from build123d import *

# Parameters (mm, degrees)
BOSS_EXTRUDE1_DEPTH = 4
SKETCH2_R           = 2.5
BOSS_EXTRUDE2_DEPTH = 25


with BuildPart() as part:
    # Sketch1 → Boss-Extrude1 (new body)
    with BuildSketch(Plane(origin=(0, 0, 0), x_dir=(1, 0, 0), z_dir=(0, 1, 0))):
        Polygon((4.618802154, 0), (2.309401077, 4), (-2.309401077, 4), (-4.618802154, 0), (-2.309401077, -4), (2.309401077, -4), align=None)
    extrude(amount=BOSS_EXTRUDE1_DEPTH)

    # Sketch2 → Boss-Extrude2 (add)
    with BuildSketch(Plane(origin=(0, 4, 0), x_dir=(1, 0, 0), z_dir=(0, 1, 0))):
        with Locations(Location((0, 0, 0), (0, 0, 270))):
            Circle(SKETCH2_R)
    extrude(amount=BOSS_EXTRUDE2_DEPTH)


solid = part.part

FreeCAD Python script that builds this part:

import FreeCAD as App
import Part
import Sketcher

V = App.Vector
Q = App.Units.Quantity


def add_polygon(sketch, points):
    """Adds a closed chain of lines whose ends are joined by coincident constraints."""
    first, n = sketch.GeometryCount, len(points)
    for a, b in zip(points, points[1:] + points[:1]):
        sketch.addGeometry(Part.LineSegment(App.Vector(*a, 0), App.Vector(*b, 0)), False)
    for i in range(n):
        sketch.addConstraint(Sketcher.Constraint("Coincident", first + i, 2, first + (i + 1) % n, 1))

doc = App.newDocument("Part")
body = doc.addObject("PartDesign::Body", "Body")

sketch1 = body.newObject("Sketcher::SketchObject", "Sketch")
sketch1.AttachmentSupport = (doc.getObject("XZ_Plane"), [""])
sketch1.MapMode = "FlatFace"
add_polygon(sketch1, [(4.6, 0), (2.3, -4), (-2.3, -4), (-4.6, 0), (-2.3, 4), (2.3, 4)])
sketch1.addConstraint(Sketcher.Constraint("Horizontal", 1))
sketch1.addConstraint(Sketcher.Constraint("Horizontal", 4))
sketch1.addConstraint(Sketcher.Constraint("Symmetric", 0, 2, 3, 2, -1, 1))
sketch1.addConstraint(Sketcher.Constraint("Symmetric", 2, 2, 5, 2, -1, 1))
sketch1.addConstraint(Sketcher.Constraint("PointOnObject", 2, 2, -1))
sketch1.addConstraint(Sketcher.Constraint("Parallel", 2, 5))
sketch1.addConstraint(Sketcher.Constraint("Vertical", 1, 2, 3, 2))
sketch1.addConstraint(Sketcher.Constraint("Angle", 0, Q("-120 deg")))
sketch1.addConstraint(Sketcher.Constraint("DistanceY", 0, 2, -1, 1, 4.0))
sketch1.addConstraint(Sketcher.Constraint("DistanceX", -1, 1, 0, 2, 2.309401))
pad1 = body.newObject("PartDesign::Pad", "Pad")
pad1.Profile = sketch1
pad1.Length = 4
pad1.Reversed = True

sketch2 = body.newObject("Sketcher::SketchObject", "Sketch001")
sketch2.AttachmentSupport = (doc.getObject("XZ_Plane"), [""])
sketch2.MapMode = "FlatFace"
sketch2.AttachmentOffset = App.Placement(V(0, 0, -4), App.Rotation())
sketch2.addGeometry(Part.Circle(V(0, 0, 0), V(0, 0, 1), 2.5), False)
sketch2.addConstraint(Sketcher.Constraint("Coincident", 0, 3, -1, 1))
sketch2.addConstraint(Sketcher.Constraint("Diameter", 0, 5.0))
pad2 = body.newObject("PartDesign::Pad", "Pad001")
pad2.Profile = sketch2
pad2.Length = 25
pad2.Reversed = True

doc.recompute()
